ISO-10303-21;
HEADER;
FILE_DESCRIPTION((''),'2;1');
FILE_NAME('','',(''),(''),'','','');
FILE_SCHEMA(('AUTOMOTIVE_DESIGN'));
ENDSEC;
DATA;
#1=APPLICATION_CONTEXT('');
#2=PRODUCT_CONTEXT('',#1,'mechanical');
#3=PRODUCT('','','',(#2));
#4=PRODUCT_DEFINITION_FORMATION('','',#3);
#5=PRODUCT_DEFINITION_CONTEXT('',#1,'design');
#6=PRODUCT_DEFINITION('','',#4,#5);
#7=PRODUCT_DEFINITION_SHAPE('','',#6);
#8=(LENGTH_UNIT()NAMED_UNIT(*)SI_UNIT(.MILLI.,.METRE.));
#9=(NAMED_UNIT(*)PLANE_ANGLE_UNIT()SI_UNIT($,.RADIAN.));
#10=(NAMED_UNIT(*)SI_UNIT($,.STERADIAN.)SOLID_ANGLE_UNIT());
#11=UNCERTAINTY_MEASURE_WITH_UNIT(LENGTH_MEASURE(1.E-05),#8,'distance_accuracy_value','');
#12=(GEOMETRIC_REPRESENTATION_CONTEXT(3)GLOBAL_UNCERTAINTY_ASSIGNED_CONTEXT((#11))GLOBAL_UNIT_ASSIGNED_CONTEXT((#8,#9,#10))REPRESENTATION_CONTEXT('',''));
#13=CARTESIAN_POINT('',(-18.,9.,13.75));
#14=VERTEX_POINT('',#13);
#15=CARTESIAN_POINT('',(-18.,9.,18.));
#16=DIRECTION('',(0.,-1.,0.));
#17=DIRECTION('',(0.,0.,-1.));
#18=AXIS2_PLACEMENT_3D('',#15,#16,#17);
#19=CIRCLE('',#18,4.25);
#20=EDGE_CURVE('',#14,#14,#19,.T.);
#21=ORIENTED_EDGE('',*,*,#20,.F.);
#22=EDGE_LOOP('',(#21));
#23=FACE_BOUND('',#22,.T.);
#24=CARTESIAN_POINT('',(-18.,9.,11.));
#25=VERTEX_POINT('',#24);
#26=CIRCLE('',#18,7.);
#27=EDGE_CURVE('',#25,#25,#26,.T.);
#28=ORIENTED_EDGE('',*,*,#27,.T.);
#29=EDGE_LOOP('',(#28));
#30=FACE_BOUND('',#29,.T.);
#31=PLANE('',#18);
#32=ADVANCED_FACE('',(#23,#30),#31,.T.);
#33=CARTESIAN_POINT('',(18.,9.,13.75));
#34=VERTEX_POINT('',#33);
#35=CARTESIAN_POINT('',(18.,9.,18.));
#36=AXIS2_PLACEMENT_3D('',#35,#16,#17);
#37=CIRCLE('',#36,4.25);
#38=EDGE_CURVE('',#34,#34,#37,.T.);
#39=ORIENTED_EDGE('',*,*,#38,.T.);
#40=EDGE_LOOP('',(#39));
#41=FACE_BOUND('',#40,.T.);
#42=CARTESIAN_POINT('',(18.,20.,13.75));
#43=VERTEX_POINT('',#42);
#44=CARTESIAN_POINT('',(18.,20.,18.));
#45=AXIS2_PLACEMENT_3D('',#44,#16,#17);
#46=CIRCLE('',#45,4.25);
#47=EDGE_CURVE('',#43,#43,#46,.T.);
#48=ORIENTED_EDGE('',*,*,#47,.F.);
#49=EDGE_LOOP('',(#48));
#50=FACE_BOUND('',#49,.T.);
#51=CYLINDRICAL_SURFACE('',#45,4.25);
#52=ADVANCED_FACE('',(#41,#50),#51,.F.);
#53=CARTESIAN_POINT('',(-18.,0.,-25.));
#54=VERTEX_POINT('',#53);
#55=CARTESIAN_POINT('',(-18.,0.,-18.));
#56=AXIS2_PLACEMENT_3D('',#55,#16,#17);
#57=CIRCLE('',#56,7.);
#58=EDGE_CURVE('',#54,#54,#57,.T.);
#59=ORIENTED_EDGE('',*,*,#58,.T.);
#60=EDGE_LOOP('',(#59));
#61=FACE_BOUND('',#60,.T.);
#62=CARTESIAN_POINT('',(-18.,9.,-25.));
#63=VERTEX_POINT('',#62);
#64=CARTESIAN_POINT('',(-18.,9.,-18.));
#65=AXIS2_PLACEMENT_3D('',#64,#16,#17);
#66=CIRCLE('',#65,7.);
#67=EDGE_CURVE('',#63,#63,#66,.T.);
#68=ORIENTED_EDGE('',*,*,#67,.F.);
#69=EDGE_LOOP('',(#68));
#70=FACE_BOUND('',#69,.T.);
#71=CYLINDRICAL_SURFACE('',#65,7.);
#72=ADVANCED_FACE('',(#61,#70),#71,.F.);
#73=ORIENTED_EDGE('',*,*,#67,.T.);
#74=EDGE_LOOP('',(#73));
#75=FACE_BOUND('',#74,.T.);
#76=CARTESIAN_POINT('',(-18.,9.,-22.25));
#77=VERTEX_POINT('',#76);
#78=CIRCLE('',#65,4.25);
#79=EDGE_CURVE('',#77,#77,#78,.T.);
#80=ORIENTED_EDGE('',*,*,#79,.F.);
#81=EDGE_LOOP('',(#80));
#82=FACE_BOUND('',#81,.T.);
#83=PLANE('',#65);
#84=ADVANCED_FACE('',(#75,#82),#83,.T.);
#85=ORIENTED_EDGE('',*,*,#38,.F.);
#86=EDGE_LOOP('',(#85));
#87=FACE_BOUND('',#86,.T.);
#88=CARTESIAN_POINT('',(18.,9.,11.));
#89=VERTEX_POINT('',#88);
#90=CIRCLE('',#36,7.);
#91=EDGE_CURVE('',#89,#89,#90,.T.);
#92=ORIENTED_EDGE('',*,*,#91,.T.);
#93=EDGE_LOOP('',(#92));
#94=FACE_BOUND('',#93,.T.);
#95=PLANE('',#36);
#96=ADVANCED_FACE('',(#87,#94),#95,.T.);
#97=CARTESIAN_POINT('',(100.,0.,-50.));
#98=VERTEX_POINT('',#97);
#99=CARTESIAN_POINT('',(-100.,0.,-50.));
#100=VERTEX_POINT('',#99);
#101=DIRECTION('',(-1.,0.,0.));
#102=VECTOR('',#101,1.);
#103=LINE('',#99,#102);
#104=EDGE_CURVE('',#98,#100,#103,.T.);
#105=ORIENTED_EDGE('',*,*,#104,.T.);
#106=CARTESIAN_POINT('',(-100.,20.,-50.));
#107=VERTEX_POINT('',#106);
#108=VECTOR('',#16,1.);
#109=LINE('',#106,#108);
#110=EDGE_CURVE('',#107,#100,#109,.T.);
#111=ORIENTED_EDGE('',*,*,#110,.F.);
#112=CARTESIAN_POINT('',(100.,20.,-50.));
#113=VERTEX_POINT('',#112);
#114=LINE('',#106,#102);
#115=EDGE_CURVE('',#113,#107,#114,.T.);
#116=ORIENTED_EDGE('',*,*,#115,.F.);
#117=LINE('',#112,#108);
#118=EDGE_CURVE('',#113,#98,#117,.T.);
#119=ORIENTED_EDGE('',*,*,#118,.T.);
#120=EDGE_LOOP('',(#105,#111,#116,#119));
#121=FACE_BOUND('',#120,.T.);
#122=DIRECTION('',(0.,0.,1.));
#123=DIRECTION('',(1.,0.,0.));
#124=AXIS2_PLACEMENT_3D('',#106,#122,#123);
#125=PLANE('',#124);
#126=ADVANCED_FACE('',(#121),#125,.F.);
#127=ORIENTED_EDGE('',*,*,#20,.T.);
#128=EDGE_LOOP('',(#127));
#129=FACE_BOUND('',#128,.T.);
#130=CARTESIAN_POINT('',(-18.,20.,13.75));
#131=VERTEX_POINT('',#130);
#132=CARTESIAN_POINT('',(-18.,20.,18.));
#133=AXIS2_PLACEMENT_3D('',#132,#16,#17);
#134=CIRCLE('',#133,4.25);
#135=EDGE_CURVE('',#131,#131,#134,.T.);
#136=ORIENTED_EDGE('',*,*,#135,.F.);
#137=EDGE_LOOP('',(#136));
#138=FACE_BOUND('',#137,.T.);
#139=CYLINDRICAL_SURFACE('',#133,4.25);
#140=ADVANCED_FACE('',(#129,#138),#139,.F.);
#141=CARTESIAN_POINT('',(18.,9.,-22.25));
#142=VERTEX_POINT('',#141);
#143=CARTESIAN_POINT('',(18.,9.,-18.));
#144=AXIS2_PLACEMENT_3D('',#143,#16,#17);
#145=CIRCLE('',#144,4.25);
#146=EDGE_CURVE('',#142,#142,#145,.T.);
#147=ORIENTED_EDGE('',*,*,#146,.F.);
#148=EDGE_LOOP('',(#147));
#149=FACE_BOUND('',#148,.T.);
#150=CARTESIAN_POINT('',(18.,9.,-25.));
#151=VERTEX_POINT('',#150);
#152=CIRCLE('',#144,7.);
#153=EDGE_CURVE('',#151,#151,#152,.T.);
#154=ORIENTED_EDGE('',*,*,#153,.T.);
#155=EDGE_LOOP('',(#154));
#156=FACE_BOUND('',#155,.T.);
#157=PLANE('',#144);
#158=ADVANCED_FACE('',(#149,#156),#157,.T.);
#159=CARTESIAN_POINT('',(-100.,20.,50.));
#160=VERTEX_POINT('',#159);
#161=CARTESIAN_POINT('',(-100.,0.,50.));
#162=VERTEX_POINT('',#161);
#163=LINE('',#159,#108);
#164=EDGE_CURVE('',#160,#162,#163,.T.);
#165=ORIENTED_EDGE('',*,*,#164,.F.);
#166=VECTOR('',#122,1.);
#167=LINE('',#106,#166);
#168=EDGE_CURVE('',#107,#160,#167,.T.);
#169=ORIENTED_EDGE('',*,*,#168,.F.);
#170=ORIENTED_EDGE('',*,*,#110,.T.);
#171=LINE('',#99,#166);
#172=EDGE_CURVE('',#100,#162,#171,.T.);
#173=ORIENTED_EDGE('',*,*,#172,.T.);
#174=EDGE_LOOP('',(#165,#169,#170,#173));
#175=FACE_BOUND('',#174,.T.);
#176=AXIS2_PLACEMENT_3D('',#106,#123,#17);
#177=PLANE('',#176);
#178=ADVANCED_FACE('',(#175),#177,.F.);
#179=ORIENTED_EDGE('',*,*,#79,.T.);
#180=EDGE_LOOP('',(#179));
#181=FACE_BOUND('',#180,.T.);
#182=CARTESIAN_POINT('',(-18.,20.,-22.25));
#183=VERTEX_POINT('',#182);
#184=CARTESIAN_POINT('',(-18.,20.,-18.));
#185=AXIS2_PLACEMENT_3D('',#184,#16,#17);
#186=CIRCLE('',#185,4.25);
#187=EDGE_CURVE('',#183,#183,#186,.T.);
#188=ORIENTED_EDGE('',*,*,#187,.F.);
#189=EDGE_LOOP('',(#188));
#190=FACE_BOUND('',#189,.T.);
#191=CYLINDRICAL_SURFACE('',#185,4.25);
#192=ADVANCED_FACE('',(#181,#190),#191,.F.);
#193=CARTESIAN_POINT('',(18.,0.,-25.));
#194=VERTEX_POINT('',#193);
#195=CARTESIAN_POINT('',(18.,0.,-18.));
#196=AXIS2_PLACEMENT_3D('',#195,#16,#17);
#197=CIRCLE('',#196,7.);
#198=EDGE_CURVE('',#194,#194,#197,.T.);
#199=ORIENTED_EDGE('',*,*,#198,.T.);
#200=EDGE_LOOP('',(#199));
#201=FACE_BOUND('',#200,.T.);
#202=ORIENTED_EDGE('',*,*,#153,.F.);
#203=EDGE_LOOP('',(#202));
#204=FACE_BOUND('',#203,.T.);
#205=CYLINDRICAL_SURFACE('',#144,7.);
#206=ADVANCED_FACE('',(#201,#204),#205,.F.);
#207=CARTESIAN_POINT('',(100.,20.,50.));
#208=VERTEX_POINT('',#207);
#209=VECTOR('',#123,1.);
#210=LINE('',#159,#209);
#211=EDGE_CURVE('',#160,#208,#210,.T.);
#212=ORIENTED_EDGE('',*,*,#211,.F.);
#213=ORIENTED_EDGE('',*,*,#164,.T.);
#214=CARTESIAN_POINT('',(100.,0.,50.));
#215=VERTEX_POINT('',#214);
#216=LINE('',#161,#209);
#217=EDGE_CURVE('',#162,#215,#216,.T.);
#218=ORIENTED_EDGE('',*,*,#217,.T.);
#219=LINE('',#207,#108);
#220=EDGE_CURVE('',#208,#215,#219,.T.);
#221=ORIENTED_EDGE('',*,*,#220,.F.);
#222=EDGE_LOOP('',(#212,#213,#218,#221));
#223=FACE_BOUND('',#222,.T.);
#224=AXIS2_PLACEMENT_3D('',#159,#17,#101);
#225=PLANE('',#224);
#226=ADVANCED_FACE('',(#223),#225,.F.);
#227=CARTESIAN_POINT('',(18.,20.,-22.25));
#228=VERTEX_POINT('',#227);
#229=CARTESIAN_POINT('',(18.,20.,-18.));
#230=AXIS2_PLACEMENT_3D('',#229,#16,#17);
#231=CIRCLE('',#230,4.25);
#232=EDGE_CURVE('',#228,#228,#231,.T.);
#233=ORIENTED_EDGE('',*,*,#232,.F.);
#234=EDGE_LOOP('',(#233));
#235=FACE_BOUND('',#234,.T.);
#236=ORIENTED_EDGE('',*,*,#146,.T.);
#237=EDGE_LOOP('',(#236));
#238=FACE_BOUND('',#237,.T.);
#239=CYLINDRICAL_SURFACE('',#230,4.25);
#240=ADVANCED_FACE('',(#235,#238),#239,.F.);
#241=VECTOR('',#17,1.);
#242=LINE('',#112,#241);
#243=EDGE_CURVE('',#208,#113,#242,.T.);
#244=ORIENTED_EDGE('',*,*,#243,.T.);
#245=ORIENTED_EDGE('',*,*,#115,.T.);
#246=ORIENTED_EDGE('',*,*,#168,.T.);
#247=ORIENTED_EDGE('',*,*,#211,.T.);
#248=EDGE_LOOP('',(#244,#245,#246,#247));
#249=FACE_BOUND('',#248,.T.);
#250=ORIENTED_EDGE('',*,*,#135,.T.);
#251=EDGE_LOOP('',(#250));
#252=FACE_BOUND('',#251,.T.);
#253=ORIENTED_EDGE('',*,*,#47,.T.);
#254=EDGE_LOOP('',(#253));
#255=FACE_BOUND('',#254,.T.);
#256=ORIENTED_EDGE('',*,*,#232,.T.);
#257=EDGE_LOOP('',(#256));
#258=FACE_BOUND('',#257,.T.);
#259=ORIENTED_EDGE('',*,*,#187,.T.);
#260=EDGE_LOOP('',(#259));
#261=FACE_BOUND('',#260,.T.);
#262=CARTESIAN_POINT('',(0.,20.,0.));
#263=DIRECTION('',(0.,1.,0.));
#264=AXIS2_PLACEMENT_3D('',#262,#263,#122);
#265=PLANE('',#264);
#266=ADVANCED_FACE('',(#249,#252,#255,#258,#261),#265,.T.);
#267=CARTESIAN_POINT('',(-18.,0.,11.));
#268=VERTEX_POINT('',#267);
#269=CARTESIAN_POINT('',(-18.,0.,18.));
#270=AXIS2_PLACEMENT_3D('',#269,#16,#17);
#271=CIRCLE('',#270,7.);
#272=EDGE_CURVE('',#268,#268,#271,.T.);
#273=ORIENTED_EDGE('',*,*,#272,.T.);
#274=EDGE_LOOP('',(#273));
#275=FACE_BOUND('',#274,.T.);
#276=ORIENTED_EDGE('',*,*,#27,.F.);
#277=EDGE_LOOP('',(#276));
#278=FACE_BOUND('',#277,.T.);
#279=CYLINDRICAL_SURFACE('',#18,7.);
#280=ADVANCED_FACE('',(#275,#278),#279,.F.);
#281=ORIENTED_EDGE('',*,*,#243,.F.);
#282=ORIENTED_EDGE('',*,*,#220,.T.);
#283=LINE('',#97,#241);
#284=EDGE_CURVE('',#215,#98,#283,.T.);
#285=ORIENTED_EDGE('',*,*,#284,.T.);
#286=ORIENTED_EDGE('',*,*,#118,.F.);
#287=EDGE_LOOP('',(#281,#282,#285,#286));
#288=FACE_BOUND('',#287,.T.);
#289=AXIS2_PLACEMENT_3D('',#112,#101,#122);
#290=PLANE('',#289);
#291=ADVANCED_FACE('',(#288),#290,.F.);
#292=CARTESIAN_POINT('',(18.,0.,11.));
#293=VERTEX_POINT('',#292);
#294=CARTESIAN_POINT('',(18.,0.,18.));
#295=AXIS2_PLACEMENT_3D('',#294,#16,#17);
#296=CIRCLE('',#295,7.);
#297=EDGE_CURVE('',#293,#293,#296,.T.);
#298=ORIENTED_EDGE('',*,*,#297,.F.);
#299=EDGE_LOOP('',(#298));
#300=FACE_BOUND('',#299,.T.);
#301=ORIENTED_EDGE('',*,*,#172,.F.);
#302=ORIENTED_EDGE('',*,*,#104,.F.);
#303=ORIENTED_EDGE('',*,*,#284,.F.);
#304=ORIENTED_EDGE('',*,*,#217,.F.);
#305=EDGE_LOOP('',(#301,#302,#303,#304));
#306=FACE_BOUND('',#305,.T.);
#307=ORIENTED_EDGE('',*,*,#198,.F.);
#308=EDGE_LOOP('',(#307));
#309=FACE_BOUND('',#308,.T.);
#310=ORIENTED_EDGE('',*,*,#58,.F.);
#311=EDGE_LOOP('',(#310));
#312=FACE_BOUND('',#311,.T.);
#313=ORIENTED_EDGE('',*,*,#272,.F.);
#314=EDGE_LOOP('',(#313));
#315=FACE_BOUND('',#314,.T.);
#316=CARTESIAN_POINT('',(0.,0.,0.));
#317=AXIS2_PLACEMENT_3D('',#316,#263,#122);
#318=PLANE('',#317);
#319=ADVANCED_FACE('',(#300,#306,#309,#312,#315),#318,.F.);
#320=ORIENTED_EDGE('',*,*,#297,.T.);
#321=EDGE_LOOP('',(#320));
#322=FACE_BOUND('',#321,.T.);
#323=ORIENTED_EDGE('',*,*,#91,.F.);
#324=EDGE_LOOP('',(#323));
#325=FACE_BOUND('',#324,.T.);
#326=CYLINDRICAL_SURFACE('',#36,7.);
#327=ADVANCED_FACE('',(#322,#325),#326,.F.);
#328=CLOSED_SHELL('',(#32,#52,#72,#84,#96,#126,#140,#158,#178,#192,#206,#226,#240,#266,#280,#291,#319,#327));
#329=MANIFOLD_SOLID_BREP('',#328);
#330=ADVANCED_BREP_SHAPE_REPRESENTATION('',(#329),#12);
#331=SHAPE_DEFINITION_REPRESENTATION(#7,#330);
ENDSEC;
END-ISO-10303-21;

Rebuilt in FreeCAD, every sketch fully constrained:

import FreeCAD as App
import Part
import Sketcher
from FreeCAD import Vector
Q = App.Units.Quantity


def add_polygon(sketch, points):
    """Adds a closed chain of lines whose ends are joined by coincident constraints."""
    first, n = sketch.GeometryCount, len(points)
    for a, b in zip(points, points[1:] + points[:1]):
        sketch.addGeometry(Part.LineSegment(App.Vector(*a, 0), App.Vector(*b, 0)), False)
    for i in range(n):
        sketch.addConstraint(Sketcher.Constraint("Coincident", first + i, 2, first + (i + 1) % n, 1))

doc = App.newDocument("Part")
body = doc.addObject("PartDesign::Body", "Body")

sketch1 = body.newObject("Sketcher::SketchObject", "Sketch")
sketch1.AttachmentSupport = (doc.getObject("XZ_Plane"), [""])
sketch1.MapMode = "FlatFace"
add_polygon(sketch1, [(-100, -50), (-100, 50), (100, 50), (100, -50)])
sketch1.addConstraint(Sketcher.Constraint("Vertical", 0))
sketch1.addConstraint(Sketcher.Constraint("Horizontal", 1))
sketch1.addConstraint(Sketcher.Constraint("Vertical", 2))
sketch1.addConstraint(Sketcher.Constraint("Horizontal", 3))
sketch1.addConstraint(Sketcher.Constraint("Symmetric", 0, 2, 2, 2, -1, 1))
sketch1.addConstraint(Sketcher.Constraint("DistanceX", 1, 1, 1, 2, Q("200 mm")))
sketch1.addConstraint(Sketcher.Constraint("DistanceY", 0, 1, 0, 2, Q("100 mm")))
pad1 = body.newObject("PartDesign::Pad", "Pad")
pad1.Profile = sketch1
pad1.Length = 20
pad1.Reversed = True

sketch2 = body.newObject("Sketcher::SketchObject", "Sketch001")
sketch2.AttachmentSupport = (doc.getObject("XZ_Plane"), [""])
sketch2.MapMode = "FlatFace"
sketch2.addGeometry(Part.Circle(Vector(-18, 18, 0), Vector(0, 0, 1), 7), False)
sketch2.addGeometry(Part.Circle(Vector(-18, -18, 0), Vector(0, 0, 1), 7), False)
sketch2.addGeometry(Part.Circle(Vector(18, 18, 0), Vector(0, 0, 1), 7), False)
sketch2.addGeometry(Part.Circle(Vector(18, -18, 0), Vector(0, 0, 1), 7), False)
sketch2.addConstraint(Sketcher.Constraint("Equal", 0, 1))
sketch2.addConstraint(Sketcher.Constraint("Equal", 1, 2))
sketch2.addConstraint(Sketcher.Constraint("Equal", 2, 3))
sketch2.addConstraint(Sketcher.Constraint("Symmetric", 1, 3, 2, 3, -1, 1))
sketch2.addConstraint(Sketcher.Constraint("Symmetric", 0, 3, 3, 3, -1, 1))
sketch2.addConstraint(Sketcher.Constraint("Symmetric", 0, 3, 2, 3, -2))
sketch2.addConstraint(Sketcher.Constraint("Diameter", 0, Q("14 mm")))
sketch2.addConstraint(Sketcher.Constraint("DistanceX", 0, 3, -1, 1, Q("18 mm")))
sketch2.addConstraint(Sketcher.Constraint("DistanceY", -1, 1, 0, 3, Q("18 mm")))
pocket1 = body.newObject("PartDesign::Pocket", "Pocket")
pocket1.Profile = sketch2
pocket1.Length = 9

sketch3 = body.newObject("Sketcher::SketchObject", "Sketch002")
sketch3.AttachmentSupport = (doc.getObject("XZ_Plane"), [""])
sketch3.MapMode = "FlatFace"
sketch3.AttachmentOffset = App.Placement(Vector(0, 0, -9), App.Rotation())
sketch3.addGeometry(Part.Circle(Vector(-18, 18, 0), Vector(0, 0, 1), 4.25), False)
sketch3.addGeometry(Part.Circle(Vector(18, 18, 0), Vector(0, 0, 1), 4.25), False)
sketch3.addGeometry(Part.Circle(Vector(18, -18, 0), Vector(0, 0, 1), 4.25), False)
sketch3.addGeometry(Part.Circle(Vector(-18, -18, 0), Vector(0, 0, 1), 4.25), False)
sketch3.addConstraint(Sketcher.Constraint("Equal", 0, 1))
sketch3.addConstraint(Sketcher.Constraint("Equal", 1, 2))
sketch3.addConstraint(Sketcher.Constraint("Equal", 2, 3))
sketch3.addConstraint(Sketcher.Constraint("Symmetric", 0, 3, 2, 3, -1, 1))
sketch3.addConstraint(Sketcher.Constraint("Symmetric", 1, 3, 3, 3, -1, 1))
sketch3.addConstraint(Sketcher.Constraint("Symmetric", 0, 3, 1, 3, -2))
sketch3.addConstraint(Sketcher.Constraint("Diameter", 0, Q("8.5 mm")))
sketch3.addConstraint(Sketcher.Constraint("DistanceX", 0, 3, -1, 1, Q("18 mm")))
sketch3.addConstraint(Sketcher.Constraint("DistanceY", -1, 1, 0, 3, Q("18 mm")))
pocket2 = body.newObject("PartDesign::Pocket", "Pocket001")
pocket2.Profile = sketch3
pocket2.Type = "ThroughAll"

doc.recompute()
